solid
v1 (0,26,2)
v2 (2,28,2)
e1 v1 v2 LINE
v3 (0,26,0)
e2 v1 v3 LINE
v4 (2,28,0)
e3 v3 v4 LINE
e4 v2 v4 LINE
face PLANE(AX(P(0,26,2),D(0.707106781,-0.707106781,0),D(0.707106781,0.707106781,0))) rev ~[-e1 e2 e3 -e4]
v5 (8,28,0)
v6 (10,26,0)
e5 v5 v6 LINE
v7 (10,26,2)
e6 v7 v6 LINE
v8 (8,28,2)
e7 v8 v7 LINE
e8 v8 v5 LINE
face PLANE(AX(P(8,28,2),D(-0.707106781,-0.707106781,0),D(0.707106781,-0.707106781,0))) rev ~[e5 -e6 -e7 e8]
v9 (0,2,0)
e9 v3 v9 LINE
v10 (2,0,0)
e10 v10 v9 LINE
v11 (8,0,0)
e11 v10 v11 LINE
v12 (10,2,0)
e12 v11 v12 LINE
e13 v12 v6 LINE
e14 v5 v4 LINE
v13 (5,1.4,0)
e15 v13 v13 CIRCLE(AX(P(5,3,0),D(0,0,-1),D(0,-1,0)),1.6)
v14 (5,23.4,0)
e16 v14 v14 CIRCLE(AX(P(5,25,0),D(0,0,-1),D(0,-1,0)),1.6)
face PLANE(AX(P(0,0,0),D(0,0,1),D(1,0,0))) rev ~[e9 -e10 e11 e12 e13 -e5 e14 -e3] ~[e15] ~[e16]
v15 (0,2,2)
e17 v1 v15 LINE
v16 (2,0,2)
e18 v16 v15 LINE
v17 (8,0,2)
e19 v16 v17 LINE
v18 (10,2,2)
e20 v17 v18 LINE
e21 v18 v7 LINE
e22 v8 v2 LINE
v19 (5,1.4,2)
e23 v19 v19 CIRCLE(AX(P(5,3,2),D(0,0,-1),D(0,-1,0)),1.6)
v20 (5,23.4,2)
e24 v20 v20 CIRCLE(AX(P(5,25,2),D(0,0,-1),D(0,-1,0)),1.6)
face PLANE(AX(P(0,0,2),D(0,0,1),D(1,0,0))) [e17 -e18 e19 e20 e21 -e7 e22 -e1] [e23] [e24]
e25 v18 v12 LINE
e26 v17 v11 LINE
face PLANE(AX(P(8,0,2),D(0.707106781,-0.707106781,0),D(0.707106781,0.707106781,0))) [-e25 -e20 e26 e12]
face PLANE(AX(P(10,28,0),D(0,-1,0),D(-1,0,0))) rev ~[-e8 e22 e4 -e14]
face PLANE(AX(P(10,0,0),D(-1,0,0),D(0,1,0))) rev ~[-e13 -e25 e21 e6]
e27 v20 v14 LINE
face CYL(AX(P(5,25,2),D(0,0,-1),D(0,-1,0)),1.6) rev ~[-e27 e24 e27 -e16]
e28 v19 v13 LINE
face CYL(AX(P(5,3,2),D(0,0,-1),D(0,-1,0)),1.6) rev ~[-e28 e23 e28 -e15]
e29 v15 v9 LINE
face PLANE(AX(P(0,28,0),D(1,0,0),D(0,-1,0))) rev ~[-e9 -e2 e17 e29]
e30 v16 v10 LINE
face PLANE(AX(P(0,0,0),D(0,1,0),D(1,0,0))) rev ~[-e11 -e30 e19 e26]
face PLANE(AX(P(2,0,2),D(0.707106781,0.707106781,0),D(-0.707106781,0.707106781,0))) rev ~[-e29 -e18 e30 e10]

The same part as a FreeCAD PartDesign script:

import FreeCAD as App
import Part
import Sketcher
from FreeCAD import Vector


def add_polygon(sketch, points):
    """Adds a closed chain of lines whose ends are joined by coincident constraints."""
    first, n = sketch.GeometryCount, len(points)
    for a, b in zip(points, points[1:] + points[:1]):
        sketch.addGeometry(Part.LineSegment(App.Vector(*a, 0), App.Vector(*b, 0)), False)
    for i in range(n):
        sketch.addConstraint(Sketcher.Constraint("Coincident", first + i, 2, first + (i + 1) % n, 1))

doc = App.newDocument("Part")
params = doc.addObject("Spreadsheet::Sheet", "Params")
for row, (alias, value) in enumerate([
    ("sketch1_width", "10 mm"),
    ("sketch1_height", "28 mm"),
    ("pad1_length", "2 mm"),
    ("sketch2_diameter", "3.2 mm"),
    ("hole_diameter", "3.2 mm"),
    ("sketch3_diameter", "3.2 mm"),
    ("hole2_diameter", "3.2 mm"),
    ("sketch4_width", "2 mm"),
    ("pocket1_length", "10 mm"),
], start=1):
    params.set(f"A{row}", alias)
    params.set(f"B{row}", "=" + value)
    params.setAlias(f"B{row}", alias)

body = doc.addObject("PartDesign::Body", "Body")

# Sketch on XY plane
sketch1 = doc.addObject("Sketcher::SketchObject", "Sketch")
body.addObject(sketch1)
sketch1.AttachmentSupport = (doc.XY_Plane, [""])
sketch1.MapMode = "FlatFace"
add_polygon(sketch1, [(0, 28), (0, 0), (10, 0), (10, 28)])  # lines 0-3
sketch1.addConstraint(Sketcher.Constraint("Vertical", 0))
sketch1.addConstraint(Sketcher.Constraint("Horizontal", 1))
sketch1.addConstraint(Sketcher.Constraint("Vertical", 2))
sketch1.addConstraint(Sketcher.Constraint("Horizontal", 3))
sketch1.addConstraint(Sketcher.Constraint("Coincident", 0, 2, -1, 1))
sketch1.addConstraint(Sketcher.Constraint("DistanceX", 1, 1, 1, 2, 10.0))
sketch1.addConstraint(Sketcher.Constraint("DistanceY", 0, 2, 0, 1, 28.0))
sketch1.setExpression("Constraints[9]", "Params.sketch1_width")
sketch1.setExpression("Constraints[10]", "Params.sketch1_height")
pad1 = doc.addObject("PartDesign::Pad", "Pad")
body.addObject(pad1)
pad1.Profile = sketch1
pad1.setExpression("Length", "Params.pad1_length")

# Sketch on XY plane
sketch2 = doc.addObject("Sketcher::SketchObject", "Sketch001")
body.addObject(sketch2)
sketch2.AttachmentSupport = (doc.XY_Plane, [""])
sketch2.MapMode = "FlatFace"
sketch2.AttachmentOffset = App.Placement(Vector(0, 0, 2), App.Rotation())
sketch2.addGeometry(Part.Circle(Vector(5, 3, 0), Vector(0, 0, 1), 1.6), False)
sketch2.addConstraint(Sketcher.Constraint("Diameter", 0, 3.2))
sketch2.addConstraint(Sketcher.Constraint("DistanceX", -1, 1, 0, 3, 5.0))
sketch2.addConstraint(Sketcher.Constraint("DistanceY", -1, 1, 0, 3, 3.0))
sketch2.setExpression("Constraints[0]", "Params.sketch2_diameter")
doc.recompute()
hole = doc.addObject("PartDesign::Hole", "Hole")
body.addObject(hole)
hole.Profile = sketch2
hole.ThreadType = "None"
hole.setExpression("Diameter", "Params.hole_diameter")
hole.DepthType = "ThroughAll"

# Sketch on XY plane
sketch3 = doc.addObject("Sketcher::SketchObject", "Sketch002")
body.addObject(sketch3)
sketch3.AttachmentSupport = (doc.XY_Plane, [""])
sketch3.MapMode = "FlatFace"
sketch3.AttachmentOffset = App.Placement(Vector(0, 0, 2), App.Rotation())
sketch3.addGeometry(Part.Circle(Vector(5, 25, 0), Vector(0, 0, 1), 1.6), False)
sketch3.addConstraint(Sketcher.Constraint("Diameter", 0, 3.2))
sketch3.addConstraint(Sketcher.Constraint("DistanceX", -1, 1, 0, 3, 5.0))
sketch3.addConstraint(Sketcher.Constraint("DistanceY", -1, 1, 0, 3, 25.0))
sketch3.setExpression("Constraints[0]", "Params.sketch3_diameter")
doc.recompute()
hole2 = doc.addObject("PartDesign::Hole", "Hole001")
body.addObject(hole2)
hole2.Profile = sketch3
hole2.ThreadType = "None"
hole2.setExpression("Diameter", "Params.hole2_diameter")
hole2.DepthType = "ThroughAll"

# Sketch on XY plane
sketch4 = doc.addObject("Sketcher::SketchObject", "Sketch003")
body.addObject(sketch4)
sketch4.AttachmentSupport = (doc.XY_Plane, [""])
sketch4.MapMode = "FlatFace"
sketch4.AttachmentOffset = App.Placement(Vector(0, 0, 2), App.Rotation())
add_polygon(sketch4, [(10, 26), (10, 28), (8, 28)])  # lines 0-2
add_polygon(sketch4, [(0, 26), (2, 28), (0, 28)])  # lines 3-5
add_polygon(sketch4, [(10, 0), (10, 2), (8, 0)])  # lines 6-8
add_polygon(sketch4, [(2, 0), (0, 2), (0, 0)])  # lines 9-11
sketch4.addConstraint(Sketcher.Constraint("Vertical", 0))
sketch4.addConstraint(Sketcher.Constraint("Horizontal", 1))
sketch4.addConstraint(Sketcher.Constraint("Horizontal", 4))
sketch4.addConstraint(Sketcher.Constraint("Vertical", 5))
sketch4.addConstraint(Sketcher.Constraint("Vertical", 6))
sketch4.addConstraint(Sketcher.Constraint("Horizontal", 8))
sketch4.addConstraint(Sketcher.Constraint("Vertical", 10))
sketch4.addConstraint(Sketcher.Constraint("Horizontal", 11))
sketch4.addConstraint(Sketcher.Constraint("Coincident", 10, 2, -1, 1))
sketch4.addConstraint(Sketcher.Constraint("PointOnObject", 4, 2, -2))
sketch4.addConstraint(Sketcher.Constraint("PointOnObject", 7, 2, -1))
sketch4.addConstraint(Sketcher.Constraint("Perpendicular", 2, 3))
sketch4.addConstraint(Sketcher.Constraint("Parallel", 3, 7))
sketch4.addConstraint(Sketcher.Constraint("Perpendicular", 7, 9))
sketch4.addConstraint(Sketcher.Constraint("Horizontal", 1, 2, 3, 2))
sketch4.addConstraint(Sketcher.Constraint("Horizontal", 2, 2, 5, 2))
sketch4.addConstraint(Sketcher.Constraint("Horizontal", 6, 2, 9, 2))
sketch4.addConstraint(Sketcher.Constraint("Vertical", 2, 2, 6, 2))
sketch4.addConstraint(Sketcher.Constraint("Vertical", 1, 2, 7, 2))
sketch4.addConstraint(Sketcher.Constraint("Vertical", 3, 2, 11, 2))
sketch4.addConstraint(Sketcher.Constraint("DistanceX", 1, 2, 1, 1, 2.0))
sketch4.addConstraint(Sketcher.Constraint("DistanceX", -1, 1, 0, 2, 10.0))
sketch4.addConstraint(Sketcher.Constraint("DistanceY", -1, 1, 0, 2, 28.0))
sketch4.setExpression("Constraints[32]", "Params.sketch4_width")
pocket1 = doc.addObject("PartDesign::Pocket", "Pocket")
body.addObject(pocket1)
pocket1.Profile = sketch4
pocket1.setExpression("Length", "Params.pocket1_length")

doc.recompute()
